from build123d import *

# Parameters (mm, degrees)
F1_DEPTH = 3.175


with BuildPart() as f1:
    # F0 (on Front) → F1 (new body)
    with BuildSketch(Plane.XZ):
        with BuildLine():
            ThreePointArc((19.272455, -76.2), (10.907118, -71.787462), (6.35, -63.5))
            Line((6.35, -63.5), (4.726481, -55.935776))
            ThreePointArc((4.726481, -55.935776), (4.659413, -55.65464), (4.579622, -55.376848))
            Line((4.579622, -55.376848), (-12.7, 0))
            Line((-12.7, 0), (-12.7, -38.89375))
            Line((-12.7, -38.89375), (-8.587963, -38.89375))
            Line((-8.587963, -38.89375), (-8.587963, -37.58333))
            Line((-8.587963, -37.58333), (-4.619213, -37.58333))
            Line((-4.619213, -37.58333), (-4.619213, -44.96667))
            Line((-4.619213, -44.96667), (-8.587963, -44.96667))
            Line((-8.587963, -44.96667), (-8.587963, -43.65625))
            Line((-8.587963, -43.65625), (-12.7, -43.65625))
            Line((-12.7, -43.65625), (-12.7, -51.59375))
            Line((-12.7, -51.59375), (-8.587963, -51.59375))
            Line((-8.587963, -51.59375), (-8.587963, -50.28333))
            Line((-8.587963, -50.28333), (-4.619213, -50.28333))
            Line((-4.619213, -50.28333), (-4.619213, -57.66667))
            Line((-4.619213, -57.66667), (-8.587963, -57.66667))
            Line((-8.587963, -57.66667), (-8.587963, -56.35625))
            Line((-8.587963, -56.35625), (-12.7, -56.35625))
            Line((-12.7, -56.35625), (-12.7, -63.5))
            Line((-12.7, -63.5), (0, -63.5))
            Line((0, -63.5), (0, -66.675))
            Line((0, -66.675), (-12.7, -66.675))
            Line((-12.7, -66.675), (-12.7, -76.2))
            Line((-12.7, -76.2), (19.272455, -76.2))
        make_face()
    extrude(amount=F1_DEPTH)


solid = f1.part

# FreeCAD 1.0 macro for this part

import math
import FreeCAD as App
import Part
import Sketcher

V = App.Vector
Q = App.Units.Quantity

doc = App.newDocument("Part")
body = doc.addObject("PartDesign::Body", "Body")

# Sketch on XZ plane
sketch1 = doc.addObject("Sketcher::SketchObject", "Sketch")
body.addObject(sketch1)
sketch1.AttachmentSupport = (doc.XZ_Plane, [""])
sketch1.MapMode = "FlatFace"
sketch1.addGeometry([
    Part.ArcOfCircle(Part.Circle(V(22.4, -60, 0), V(0, 0, 1), 16.5), math.radians(-168), math.radians(-101)),  # 0
    Part.LineSegment(V(6.3, -63.5, 0), V(4.7, -55.9, 0)),  # 1
    Part.ArcOfCircle(Part.Circle(V(-1.5, -57.3, 0), V(0, 0, 1), 6.4), math.radians(12.11), math.radians(17.33)),  # 2
    Part.LineSegment(V(4.6, -55.4, 0), V(-12.7, 0, 0)),  # 3
    Part.LineSegment(V(-12.7, 0, 0), V(-12.7, -38.9, 0)),  # 4
    Part.LineSegment(V(-12.7, -38.9, 0), V(-8.6, -38.9, 0)),  # 5
    Part.LineSegment(V(-8.6, -38.9, 0), V(-8.6, -37.6, 0)),  # 6
    Part.LineSegment(V(-8.6, -37.6, 0), V(-4.6, -37.6, 0)),  # 7
    Part.LineSegment(V(-4.6, -37.6, 0), V(-4.6, -45, 0)),  # 8
    Part.LineSegment(V(-4.6, -45, 0), V(-8.6, -45, 0)),  # 9
    Part.LineSegment(V(-8.6, -45, 0), V(-8.6, -43.7, 0)),  # 10
    Part.LineSegment(V(-8.6, -43.7, 0), V(-12.7, -43.7, 0)),  # 11
    Part.LineSegment(V(-12.7, -43.7, 0), V(-12.7, -51.6, 0)),  # 12
    Part.LineSegment(V(-12.7, -51.6, 0), V(-8.6, -51.6, 0)),  # 13
    Part.LineSegment(V(-8.6, -51.6, 0), V(-8.6, -50.3, 0)),  # 14
    Part.LineSegment(V(-8.6, -50.3, 0), V(-4.6, -50.3, 0)),  # 15
    Part.LineSegment(V(-4.6, -50.3, 0), V(-4.6, -57.7, 0)),  # 16
    Part.LineSegment(V(-4.6, -57.7, 0), V(-8.6, -57.7, 0)),  # 17
    Part.LineSegment(V(-8.6, -57.7, 0), V(-8.6, -56.4, 0)),  # 18
    Part.LineSegment(V(-8.6, -56.4, 0), V(-12.7, -56.4, 0)),  # 19
    Part.LineSegment(V(-12.7, -56.4, 0), V(-12.7, -63.5, 0)),  # 20
    Part.LineSegment(V(-12.7, -63.5, 0), V(0, -63.5, 0)),  # 21
    Part.LineSegment(V(0, -63.5, 0), V(0, -66.7, 0)),  # 22
    Part.LineSegment(V(0, -66.7, 0), V(-12.7, -66.7, 0)),  # 23
    Part.LineSegment(V(-12.7, -66.7, 0), V(-12.7, -76.2, 0)),  # 24
    Part.LineSegment(V(-12.7, -76.2, 0), V(19.3, -76.2, 0)),  # 25
], False)
sketch1.addConstraint([
    Sketcher.Constraint("Tangent", 0, 1, 1, 1),
    Sketcher.Constraint("Tangent", 1, 2, 2, 1),
    Sketcher.Constraint("Tangent", 2, 2, 3, 1),
    Sketcher.Constraint("Coincident", 3, 2, 4, 1),
    Sketcher.Constraint("Coincident", 4, 2, 5, 1),
    Sketcher.Constraint("Coincident", 5, 2, 6, 1),
    Sketcher.Constraint("Coincident", 6, 2, 7, 1),
    Sketcher.Constraint("Coincident", 7, 2, 8, 1),
    Sketcher.Constraint("Coincident", 8, 2, 9, 1),
    Sketcher.Constraint("Coincident", 9, 2, 10, 1),
    Sketcher.Constraint("Coincident", 10, 2, 11, 1),
    Sketcher.Constraint("Coincident", 11, 2, 12, 1),
    Sketcher.Constraint("Coincident", 12, 2, 13, 1),
    Sketcher.Constraint("Coincident", 13, 2, 14, 1),
    Sketcher.Constraint("Coincident", 14, 2, 15, 1),
    Sketcher.Constraint("Coincident", 15, 2, 16, 1),
    Sketcher.Constraint("Coincident", 16, 2, 17, 1),
    Sketcher.Constraint("Coincident", 17, 2, 18, 1),
    Sketcher.Constraint("Coincident", 18, 2, 19, 1),
    Sketcher.Constraint("Coincident", 19, 2, 20, 1),
    Sketcher.Constraint("Coincident", 20, 2, 21, 1),
    Sketcher.Constraint("Coincident", 21, 2, 22, 1),
    Sketcher.Constraint("Coincident", 22, 2, 23, 1),
    Sketcher.Constraint("Coincident", 23, 2, 24, 1),
    Sketcher.Constraint("Coincident", 24, 2, 25, 1),
    Sketcher.Constraint("Coincident", 25, 2, 0, 2),
    Sketcher.Constraint("Vertical", 4),
    Sketcher.Constraint("Horizontal", 5),
    Sketcher.Constraint("Vertical", 6),
    Sketcher.Constraint("Horizontal", 7),
    Sketcher.Constraint("Vertical", 8),
    Sketcher.Constraint("Horizontal", 9),
    Sketcher.Constraint("Vertical", 10),
    Sketcher.Constraint("Horizontal", 11),
    Sketcher.Constraint("Vertical", 12),
    Sketcher.Constraint("Horizontal", 13),
    Sketcher.Constraint("Vertical", 14),
    Sketcher.Constraint("Horizontal", 15),
    Sketcher.Constraint("Vertical", 16),
    Sketcher.Constraint("Horizontal", 17),
    Sketcher.Constraint("Vertical", 18),
    Sketcher.Constraint("Horizontal", 19),
    Sketcher.Constraint("Vertical", 20),
    Sketcher.Constraint("Horizontal", 21),
    Sketcher.Constraint("Vertical", 22),
    Sketcher.Constraint("Horizontal", 23),
    Sketcher.Constraint("Vertical", 24),
    Sketcher.Constraint("Horizontal", 25),
    Sketcher.Constraint("PointOnObject", 3, 2, -1),
    Sketcher.Constraint("PointOnObject", 21, 2, -2),
    Sketcher.Constraint("Horizontal", 0, 1, 20, 2),
    Sketcher.Constraint("Vertical", 6, 2, 9, 2),
    Sketcher.Constraint("Vertical", 4, 2, 11, 2),
    Sketcher.Constraint("Vertical", 10, 2, 13, 2),
    Sketcher.Constraint("Vertical", 8, 2, 15, 2),
    Sketcher.Constraint("Vertical", 14, 2, 17, 2),
    Sketcher.Constraint("Vertical", 12, 2, 19, 2),
    Sketcher.Constraint("Vertical", 20, 2, 23, 2),
    Sketcher.Constraint("Equal", 6, 10),
    Sketcher.Constraint("Equal", 10, 14),
    Sketcher.Constraint("Equal", 8, 16),
    Sketcher.Constraint("Equal", 14, 18),
    Sketcher.Constraint("DistanceX", 21, 1, 21, 2, Q("0.5 in")),
    Sketcher.Constraint("DistanceY", 24, 2, -1, 1, Q("3 in")),
    Sketcher.Constraint("DistanceY", 0, 1, -1, 1, Q("2.5 in")),
    Sketcher.Constraint("DistanceX", 7, 1, 7, 2, Q("0.15625 in")),
    Sketcher.Constraint("DistanceY", 4, 2, 4, 1, Q("1.53125 in")),
    Sketcher.Constraint("DistanceY", 12, 2, 12, 1, Q("0.3125 in")),
    Sketcher.Constraint("DistanceY", 20, 2, 20, 1, Q("0.28125 in")),
    Sketcher.Constraint("DistanceY", 22, 2, 22, 1, Q("0.125 in")),
    Sketcher.Constraint("DistanceX", -1, 1, 0, 1, Q("0.25 in")),
    Sketcher.Constraint("Radius", 0, 16.464059),
    Sketcher.Constraint("DistanceX", 25, 2, 0, 3, Q("0.125 in")),
    Sketcher.Constraint("DistanceX", -1, 1, 2, 2, Q("0.1803001 in")),
    Sketcher.Constraint("Radius", 2, 6.350023),
    Sketcher.Constraint("DistanceY", 6, 1, 6, 2, 1.31042),
    Sketcher.Constraint("DistanceX", 5, 1, 5, 2, 4.112037),
])
pad1 = doc.addObject("PartDesign::Pad", "Pad")
body.addObject(pad1)
pad1.Profile = sketch1
pad1.Length = Q("0.125 in")

doc.recompute()
